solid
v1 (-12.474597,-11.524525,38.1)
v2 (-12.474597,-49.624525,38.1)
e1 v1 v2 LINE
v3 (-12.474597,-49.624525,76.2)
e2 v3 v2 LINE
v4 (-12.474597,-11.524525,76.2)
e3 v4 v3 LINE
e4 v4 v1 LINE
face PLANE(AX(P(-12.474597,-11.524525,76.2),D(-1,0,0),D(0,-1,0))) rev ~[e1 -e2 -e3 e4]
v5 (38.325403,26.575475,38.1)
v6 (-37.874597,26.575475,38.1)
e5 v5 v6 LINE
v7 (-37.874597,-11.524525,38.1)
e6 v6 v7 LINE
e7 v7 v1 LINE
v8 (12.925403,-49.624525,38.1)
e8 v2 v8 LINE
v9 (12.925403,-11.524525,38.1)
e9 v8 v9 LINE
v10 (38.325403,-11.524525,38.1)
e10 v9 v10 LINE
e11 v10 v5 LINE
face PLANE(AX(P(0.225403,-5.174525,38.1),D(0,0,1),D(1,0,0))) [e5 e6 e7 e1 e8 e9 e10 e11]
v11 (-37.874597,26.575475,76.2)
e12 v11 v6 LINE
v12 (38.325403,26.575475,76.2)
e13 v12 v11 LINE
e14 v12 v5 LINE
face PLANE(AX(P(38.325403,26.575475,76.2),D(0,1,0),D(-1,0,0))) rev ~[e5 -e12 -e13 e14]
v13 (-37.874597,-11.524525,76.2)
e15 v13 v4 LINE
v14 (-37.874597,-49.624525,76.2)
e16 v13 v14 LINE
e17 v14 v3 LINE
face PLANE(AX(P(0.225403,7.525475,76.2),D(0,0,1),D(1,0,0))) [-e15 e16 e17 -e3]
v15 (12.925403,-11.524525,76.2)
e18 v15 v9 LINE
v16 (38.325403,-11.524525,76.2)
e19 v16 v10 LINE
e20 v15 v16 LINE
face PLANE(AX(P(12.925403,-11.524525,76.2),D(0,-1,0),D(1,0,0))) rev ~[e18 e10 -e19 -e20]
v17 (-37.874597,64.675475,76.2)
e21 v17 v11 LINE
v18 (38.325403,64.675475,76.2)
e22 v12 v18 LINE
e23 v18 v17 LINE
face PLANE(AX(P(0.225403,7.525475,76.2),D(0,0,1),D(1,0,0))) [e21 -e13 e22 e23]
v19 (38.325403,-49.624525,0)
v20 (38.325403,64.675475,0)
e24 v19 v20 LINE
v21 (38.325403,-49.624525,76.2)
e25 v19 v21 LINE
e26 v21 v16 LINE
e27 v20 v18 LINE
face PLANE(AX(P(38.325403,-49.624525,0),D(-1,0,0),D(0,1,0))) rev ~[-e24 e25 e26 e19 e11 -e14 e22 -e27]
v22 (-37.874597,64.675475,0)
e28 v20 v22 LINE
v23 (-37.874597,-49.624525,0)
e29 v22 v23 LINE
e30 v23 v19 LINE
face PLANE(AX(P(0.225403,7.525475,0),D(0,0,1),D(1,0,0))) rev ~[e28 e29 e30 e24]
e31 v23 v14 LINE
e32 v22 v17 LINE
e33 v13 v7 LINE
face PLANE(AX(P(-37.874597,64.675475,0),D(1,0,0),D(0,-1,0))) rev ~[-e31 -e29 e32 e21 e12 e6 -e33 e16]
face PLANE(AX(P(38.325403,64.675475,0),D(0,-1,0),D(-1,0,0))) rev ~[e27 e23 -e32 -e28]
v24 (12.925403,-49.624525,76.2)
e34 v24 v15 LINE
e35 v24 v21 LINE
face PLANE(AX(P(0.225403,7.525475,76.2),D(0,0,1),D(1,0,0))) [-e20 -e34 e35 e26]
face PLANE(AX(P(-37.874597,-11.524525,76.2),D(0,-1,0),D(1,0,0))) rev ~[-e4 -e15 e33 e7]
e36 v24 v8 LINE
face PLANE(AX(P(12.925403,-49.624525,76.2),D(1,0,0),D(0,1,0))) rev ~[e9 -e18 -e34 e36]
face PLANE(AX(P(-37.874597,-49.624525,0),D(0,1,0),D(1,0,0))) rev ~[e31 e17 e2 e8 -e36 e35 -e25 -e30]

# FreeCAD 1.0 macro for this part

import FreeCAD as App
import Part
import Sketcher
Q = App.Units.Quantity

doc = App.newDocument("Part")
body = doc.addObject("PartDesign::Body", "Body")

sketch1 = doc.addObject("Sketcher::SketchObject", "Sketch")
body.addObject(sketch1)
sketch1.AttachmentSupport = (doc.XY_Plane, [""])
sketch1.MapMode = "FlatFace"
sketch1.addGeometry([
    Part.LineSegment(App.Vector(38, 65, 0), App.Vector(-38, 65, 0)),
    Part.LineSegment(App.Vector(-38, 65, 0), App.Vector(-38, -50, 0)),
    Part.LineSegment(App.Vector(-38, -50, 0), App.Vector(38, -50, 0)),
    Part.LineSegment(App.Vector(38, -50, 0), App.Vector(38, 65, 0)),
], False)
sketch1.addConstraint([
    Sketcher.Constraint("Coincident", 0, 2, 1, 1),
    Sketcher.Constraint("Coincident", 1, 2, 2, 1),
    Sketcher.Constraint("Coincident", 2, 2, 3, 1),
    Sketcher.Constraint("Coincident", 3, 2, 0, 1),
    Sketcher.Constraint("Horizontal", 0),
    Sketcher.Constraint("Vertical", 1),
    Sketcher.Constraint("Horizontal", 2),
    Sketcher.Constraint("Vertical", 3),
    Sketcher.Constraint("DistanceX", 0, 2, 0, 1, Q("3 in")),
    Sketcher.Constraint("DistanceY", 1, 2, 1, 1, Q("4.5 in")),
    Sketcher.Constraint("DistanceX", 0, 2, -1, 1, Q("37.874597 mm")),
    Sketcher.Constraint("DistanceY", -1, 1, 0, 2, Q("64.675475 mm")),
])
pad1 = doc.addObject("PartDesign::Pad", "Pad")
body.addObject(pad1)
pad1.Profile = sketch1
pad1.Length = Q("3 in")

sketch2 = doc.addObject("Sketcher::SketchObject", "Sketch001")
body.addObject(sketch2)
sketch2.AttachmentSupport = (doc.XY_Plane, [""])
sketch2.MapMode = "FlatFace"
sketch2.AttachmentOffset = App.Placement(App.Vector(0, 0, 3 * 25.4), App.Rotation())
sketch2.addGeometry([
    Part.LineSegment(App.Vector(38, 27, 0), App.Vector(-38, 27, 0)),
    Part.LineSegment(App.Vector(-38, 27, 0), App.Vector(-38, -12, 0)),
    Part.LineSegment(App.Vector(-38, -12, 0), App.Vector(-12, -12, 0)),
    Part.LineSegment(App.Vector(-12, -12, 0), App.Vector(-12, -50, 0)),
    Part.LineSegment(App.Vector(-12, -50, 0), App.Vector(13, -50, 0)),
    Part.LineSegment(App.Vector(13, -50, 0), App.Vector(13, -12, 0)),
    Part.LineSegment(App.Vector(13, -12, 0), App.Vector(38, -12, 0)),
    Part.LineSegment(App.Vector(38, -12, 0), App.Vector(38, 27, 0)),
], False)
sketch2.addConstraint([
    Sketcher.Constraint("Coincident", 0, 2, 1, 1),
    Sketcher.Constraint("Coincident", 1, 2, 2, 1),
    Sketcher.Constraint("Coincident", 2, 2, 3, 1),
    Sketcher.Constraint("Coincident", 3, 2, 4, 1),
    Sketcher.Constraint("Coincident", 4, 2, 5, 1),
    Sketcher.Constraint("Coincident", 5, 2, 6, 1),
    Sketcher.Constraint("Coincident", 6, 2, 7, 1),
    Sketcher.Constraint("Coincident", 7, 2, 0, 1),
    Sketcher.Constraint("Horizontal", 0),
    Sketcher.Constraint("Vertical", 1),
    Sketcher.Constraint("Horizontal", 2),
    Sketcher.Constraint("Vertical", 3),
    Sketcher.Constraint("Horizontal", 4),
    Sketcher.Constraint("Vertical", 5),
    Sketcher.Constraint("Horizontal", 6),
    Sketcher.Constraint("Vertical", 7),
    Sketcher.Constraint("Horizontal", 2, 2, 5, 2),
    Sketcher.Constraint("Equal", 2, 4),
    Sketcher.Constraint("Equal", 4, 6),
    Sketcher.Constraint("Equal", 1, 3),
    Sketcher.Constraint("DistanceX", 0, 2, 0, 1, Q("3 in")),
    Sketcher.Constraint("DistanceY", 1, 2, 1, 1, Q("1.5 in")),
    Sketcher.Constraint("DistanceX", 0, 2, -1, 1, Q("37.874597 mm")),
    Sketcher.Constraint("DistanceY", -1, 1, 0, 2, Q("26.575475 mm")),
])
pocket1 = doc.addObject("PartDesign::Pocket", "Pocket")
body.addObject(pocket1)
pocket1.Profile = sketch2
pocket1.Length = Q("1.5 in")

doc.recompute()
